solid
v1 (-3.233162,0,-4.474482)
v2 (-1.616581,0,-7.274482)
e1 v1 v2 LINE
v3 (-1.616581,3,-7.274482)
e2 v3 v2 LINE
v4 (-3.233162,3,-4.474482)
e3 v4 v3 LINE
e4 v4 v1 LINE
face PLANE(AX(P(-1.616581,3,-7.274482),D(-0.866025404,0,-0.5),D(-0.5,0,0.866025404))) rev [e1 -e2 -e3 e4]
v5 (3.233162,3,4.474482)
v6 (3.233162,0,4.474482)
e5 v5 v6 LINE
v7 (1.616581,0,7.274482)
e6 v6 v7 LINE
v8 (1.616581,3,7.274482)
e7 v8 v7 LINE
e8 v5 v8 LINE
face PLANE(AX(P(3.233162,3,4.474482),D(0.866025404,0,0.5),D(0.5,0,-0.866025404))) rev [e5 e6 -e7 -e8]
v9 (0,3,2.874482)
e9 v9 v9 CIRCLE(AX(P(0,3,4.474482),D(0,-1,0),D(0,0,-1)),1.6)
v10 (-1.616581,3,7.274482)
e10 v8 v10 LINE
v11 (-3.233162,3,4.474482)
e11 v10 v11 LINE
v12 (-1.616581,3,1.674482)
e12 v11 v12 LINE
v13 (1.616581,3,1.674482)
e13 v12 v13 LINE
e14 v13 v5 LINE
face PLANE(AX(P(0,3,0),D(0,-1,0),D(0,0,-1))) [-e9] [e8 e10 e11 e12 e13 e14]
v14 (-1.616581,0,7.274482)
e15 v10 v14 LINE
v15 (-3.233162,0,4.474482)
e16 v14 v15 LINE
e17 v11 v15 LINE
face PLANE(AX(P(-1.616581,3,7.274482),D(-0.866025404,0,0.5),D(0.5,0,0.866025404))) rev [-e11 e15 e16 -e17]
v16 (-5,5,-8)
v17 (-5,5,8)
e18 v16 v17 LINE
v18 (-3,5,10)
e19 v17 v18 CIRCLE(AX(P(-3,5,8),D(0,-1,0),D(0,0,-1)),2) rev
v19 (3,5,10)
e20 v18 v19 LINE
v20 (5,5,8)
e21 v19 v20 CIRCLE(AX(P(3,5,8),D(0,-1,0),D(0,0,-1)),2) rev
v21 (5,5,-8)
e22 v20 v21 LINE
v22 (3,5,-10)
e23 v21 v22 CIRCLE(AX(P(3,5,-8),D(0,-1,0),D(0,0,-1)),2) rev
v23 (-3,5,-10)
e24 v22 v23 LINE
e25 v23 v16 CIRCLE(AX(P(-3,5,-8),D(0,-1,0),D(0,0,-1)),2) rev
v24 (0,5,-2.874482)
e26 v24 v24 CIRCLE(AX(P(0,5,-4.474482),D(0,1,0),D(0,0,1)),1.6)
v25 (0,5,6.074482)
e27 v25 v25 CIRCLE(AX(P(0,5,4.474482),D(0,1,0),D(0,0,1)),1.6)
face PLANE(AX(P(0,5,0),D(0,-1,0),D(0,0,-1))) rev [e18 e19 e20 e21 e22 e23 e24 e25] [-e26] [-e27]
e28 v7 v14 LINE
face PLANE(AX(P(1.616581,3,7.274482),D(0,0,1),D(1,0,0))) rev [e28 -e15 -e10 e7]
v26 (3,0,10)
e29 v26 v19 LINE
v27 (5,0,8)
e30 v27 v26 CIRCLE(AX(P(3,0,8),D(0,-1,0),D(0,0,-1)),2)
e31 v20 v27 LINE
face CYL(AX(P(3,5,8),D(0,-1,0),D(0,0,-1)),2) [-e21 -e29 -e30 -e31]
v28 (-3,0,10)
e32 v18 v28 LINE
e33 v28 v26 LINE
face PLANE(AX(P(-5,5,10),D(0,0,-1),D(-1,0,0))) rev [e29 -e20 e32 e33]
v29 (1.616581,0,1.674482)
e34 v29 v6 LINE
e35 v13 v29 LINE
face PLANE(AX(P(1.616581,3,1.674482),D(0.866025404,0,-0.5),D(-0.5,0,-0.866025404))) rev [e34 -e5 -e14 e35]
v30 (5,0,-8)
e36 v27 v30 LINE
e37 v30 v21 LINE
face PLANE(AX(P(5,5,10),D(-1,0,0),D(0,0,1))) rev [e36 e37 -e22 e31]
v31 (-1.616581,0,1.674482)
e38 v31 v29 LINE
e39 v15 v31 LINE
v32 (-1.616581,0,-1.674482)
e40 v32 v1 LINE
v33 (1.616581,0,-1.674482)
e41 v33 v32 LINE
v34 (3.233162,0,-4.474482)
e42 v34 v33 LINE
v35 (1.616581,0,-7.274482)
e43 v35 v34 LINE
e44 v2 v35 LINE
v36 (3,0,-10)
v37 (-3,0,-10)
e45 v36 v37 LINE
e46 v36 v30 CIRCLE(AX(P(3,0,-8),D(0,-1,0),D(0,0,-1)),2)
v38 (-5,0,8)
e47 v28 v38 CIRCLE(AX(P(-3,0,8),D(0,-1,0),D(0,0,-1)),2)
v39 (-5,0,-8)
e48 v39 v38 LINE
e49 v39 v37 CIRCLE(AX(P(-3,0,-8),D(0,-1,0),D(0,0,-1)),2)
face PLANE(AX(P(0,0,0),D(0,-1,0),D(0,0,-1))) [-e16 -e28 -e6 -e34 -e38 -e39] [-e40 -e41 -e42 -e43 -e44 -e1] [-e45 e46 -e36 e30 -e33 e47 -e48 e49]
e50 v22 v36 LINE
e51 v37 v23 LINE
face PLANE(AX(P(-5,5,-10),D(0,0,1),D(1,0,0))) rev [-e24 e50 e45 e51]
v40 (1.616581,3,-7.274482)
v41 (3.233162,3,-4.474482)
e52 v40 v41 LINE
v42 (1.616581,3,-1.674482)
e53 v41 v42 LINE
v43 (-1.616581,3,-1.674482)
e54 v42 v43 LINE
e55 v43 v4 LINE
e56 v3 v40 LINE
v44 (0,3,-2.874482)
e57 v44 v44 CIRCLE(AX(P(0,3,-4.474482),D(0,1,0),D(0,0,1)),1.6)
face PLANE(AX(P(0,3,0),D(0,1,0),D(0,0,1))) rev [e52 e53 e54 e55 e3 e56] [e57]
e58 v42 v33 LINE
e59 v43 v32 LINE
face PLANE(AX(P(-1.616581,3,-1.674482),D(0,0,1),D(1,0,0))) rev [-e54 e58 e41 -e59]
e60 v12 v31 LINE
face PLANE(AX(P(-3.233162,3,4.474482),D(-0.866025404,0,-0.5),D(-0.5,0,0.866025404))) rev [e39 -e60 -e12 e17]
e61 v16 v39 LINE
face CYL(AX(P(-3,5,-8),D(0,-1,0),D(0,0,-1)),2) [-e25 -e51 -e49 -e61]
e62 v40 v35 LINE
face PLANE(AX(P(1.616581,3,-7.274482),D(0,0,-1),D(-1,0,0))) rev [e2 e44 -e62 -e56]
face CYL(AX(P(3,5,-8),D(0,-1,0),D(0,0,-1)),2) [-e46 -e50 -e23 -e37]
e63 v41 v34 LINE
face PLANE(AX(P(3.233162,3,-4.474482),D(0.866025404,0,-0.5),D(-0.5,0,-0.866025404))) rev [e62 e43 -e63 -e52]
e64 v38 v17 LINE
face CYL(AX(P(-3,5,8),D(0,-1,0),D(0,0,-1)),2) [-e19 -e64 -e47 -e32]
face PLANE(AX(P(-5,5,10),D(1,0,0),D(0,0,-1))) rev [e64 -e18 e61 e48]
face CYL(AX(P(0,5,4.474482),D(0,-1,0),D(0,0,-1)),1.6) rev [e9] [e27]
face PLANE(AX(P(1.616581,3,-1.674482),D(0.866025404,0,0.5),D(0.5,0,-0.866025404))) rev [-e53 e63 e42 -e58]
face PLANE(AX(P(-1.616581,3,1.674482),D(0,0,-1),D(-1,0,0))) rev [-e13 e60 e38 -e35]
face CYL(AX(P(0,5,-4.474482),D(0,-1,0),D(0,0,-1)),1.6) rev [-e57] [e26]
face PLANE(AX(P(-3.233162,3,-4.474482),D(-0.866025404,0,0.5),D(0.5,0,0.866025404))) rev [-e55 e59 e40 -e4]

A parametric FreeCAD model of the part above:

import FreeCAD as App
import Part
import Sketcher
Q = App.Units.Quantity


def edges_at(feature, points):
    """Names of the edges that pass closest to the given points."""
    edges = feature.Shape.Edges
    near = lambda p: min(range(len(edges)), key=lambda i: edges[i].distToShape(Part.Vertex(*p))[0])
    return sorted({f"Edge{near(p) + 1}" for p in points})

doc = App.newDocument("Part")
body = doc.addObject("PartDesign::Body", "Body")

sketch1 = doc.addObject("Sketcher::SketchObject", "Sketch")
body.addObject(sketch1)
sketch1.AttachmentSupport = (doc.XZ_Plane, [""])
sketch1.MapMode = "FlatFace"
sketch1.addGeometry([
    Part.LineSegment(App.Vector(-5, -10, 0), App.Vector(-5, 10, 0)),
    Part.LineSegment(App.Vector(-5, 10, 0), App.Vector(5, 10, 0)),
    Part.LineSegment(App.Vector(5, 10, 0), App.Vector(5, -10, 0)),
    Part.LineSegment(App.Vector(5, -10, 0), App.Vector(-5, -10, 0)),
    Part.Circle(App.Vector(0, 4.5, 0), App.Vector(0, 0, 1), 1.6),
    Part.Circle(App.Vector(0, -4.5, 0), App.Vector(0, 0, 1), 1.6),
], False)
sketch1.addConstraint([
    Sketcher.Constraint("Coincident", 0, 2, 1, 1),
    Sketcher.Constraint("Coincident", 1, 2, 2, 1),
    Sketcher.Constraint("Coincident", 2, 2, 3, 1),
    Sketcher.Constraint("Coincident", 3, 2, 0, 1),
    Sketcher.Constraint("Vertical", 0),
    Sketcher.Constraint("Horizontal", 1),
    Sketcher.Constraint("Vertical", 2),
    Sketcher.Constraint("Horizontal", 3),
    Sketcher.Constraint("Equal", 4, 5),
    Sketcher.Constraint("Symmetric", 4, 3, 5, 3, -1, 1),
    Sketcher.Constraint("Symmetric", 0, 2, 2, 2, -1, 1),
    Sketcher.Constraint("PointOnObject", 4, 3, -2),
    Sketcher.Constraint("Diameter", 4, 3.2),
    Sketcher.Constraint("DistanceX", 1, 1, 1, 2, 10.0),
    Sketcher.Constraint("DistanceY", 0, 1, 0, 2, 20.0),
    Sketcher.Constraint("DistanceY", -1, 1, 4, 3, 4.474482),
])
pad1 = doc.addObject("PartDesign::Pad", "Pad")
body.addObject(pad1)
pad1.Profile = sketch1
pad1.Length = 5
pad1.Reversed = True

sketch2 = doc.addObject("Sketcher::SketchObject", "Sketch001")
body.addObject(sketch2)
sketch2.AttachmentSupport = (doc.XZ_Plane, [""])
sketch2.MapMode = "FlatFace"
sketch2.addGeometry([
    Part.LineSegment(App.Vector(3.2, 4.5, 0), App.Vector(1.6, 7.3, 0)),
    Part.LineSegment(App.Vector(1.6, 7.3, 0), App.Vector(-1.6, 7.3, 0)),
    Part.LineSegment(App.Vector(-1.6, 7.3, 0), App.Vector(-3.2, 4.5, 0)),
    Part.LineSegment(App.Vector(-3.2, 4.5, 0), App.Vector(-1.6, 1.7, 0)),
    Part.LineSegment(App.Vector(-1.6, 1.7, 0), App.Vector(1.6, 1.7, 0)),
    Part.LineSegment(App.Vector(1.6, 1.7, 0), App.Vector(3.2, 4.5, 0)),
    Part.LineSegment(App.Vector(3.2, -4.5, 0), App.Vector(1.6, -1.7, 0)),
    Part.LineSegment(App.Vector(1.6, -1.7, 0), App.Vector(-1.6, -1.7, 0)),
    Part.LineSegment(App.Vector(-1.6, -1.7, 0), App.Vector(-3.2, -4.5, 0)),
    Part.LineSegment(App.Vector(-3.2, -4.5, 0), App.Vector(-1.6, -7.3, 0)),
    Part.LineSegment(App.Vector(-1.6, -7.3, 0), App.Vector(1.6, -7.3, 0)),
    Part.LineSegment(App.Vector(1.6, -7.3, 0), App.Vector(3.2, -4.5, 0)),
], False)
sketch2.addConstraint([
    Sketcher.Constraint("Coincident", 0, 2, 1, 1),
    Sketcher.Constraint("Coincident", 1, 2, 2, 1),
    Sketcher.Constraint("Coincident", 2, 2, 3, 1),
    Sketcher.Constraint("Coincident", 3, 2, 4, 1),
    Sketcher.Constraint("Coincident", 4, 2, 5, 1),
    Sketcher.Constraint("Coincident", 5, 2, 0, 1),
    Sketcher.Constraint("Coincident", 6, 2, 7, 1),
    Sketcher.Constraint("Coincident", 7, 2, 8, 1),
    Sketcher.Constraint("Coincident", 8, 2, 9, 1),
    Sketcher.Constraint("Coincident", 9, 2, 10, 1),
    Sketcher.Constraint("Coincident", 10, 2, 11, 1),
    Sketcher.Constraint("Coincident", 11, 2, 6, 1),
    Sketcher.Constraint("Horizontal", 1),
    Sketcher.Constraint("Horizontal", 4),
    Sketcher.Constraint("Horizontal", 7),
    Sketcher.Constraint("Horizontal", 10),
    Sketcher.Constraint("Symmetric", 3, 2, 6, 2, -1, 1),
    Sketcher.Constraint("Symmetric", 5, 2, 8, 2, -1, 1),
    Sketcher.Constraint("Symmetric", 0, 2, 9, 2, -1, 1),
    Sketcher.Constraint("Symmetric", 2, 2, 11, 2, -1, 1),
    Sketcher.Constraint("Symmetric", 2, 2, 5, 2, -2),
    Sketcher.Constraint("Parallel", 0, 3),
    Sketcher.Constraint("Parallel", 2, 5),
    Sketcher.Constraint("Parallel", 5, 8),
    Sketcher.Constraint("Parallel", 8, 11),
    Sketcher.Constraint("Vertical", 1, 2, 3, 2),
    Sketcher.Constraint("Vertical", 0, 2, 4, 2),
    Sketcher.Constraint("Angle", 0, Q("120 deg")),
    Sketcher.Constraint("DistanceY", 2, 2, 1, 2, 2.8),
    Sketcher.Constraint("DistanceX", 1, 2, 1, 1, 3.233162),
    Sketcher.Constraint("DistanceY", -1, 1, 0, 2, 7.274482),
])
pocket1 = doc.addObject("PartDesign::Pocket", "Pocket")
body.addObject(pocket1)
pocket1.Profile = sketch2
pocket1.Length = 3
doc.recompute()

fillet = doc.addObject("PartDesign::Fillet", "Fillet")
body.addObject(fillet)
fillet.Base = (pocket1, edges_at(pocket1, [
    (5, 2.5, 10),
    (-5, 2.5, 10),
    (-5, 2.5, -10),
    (5, 2.5, -10),
]))
fillet.Radius = 2

doc.recompute()
